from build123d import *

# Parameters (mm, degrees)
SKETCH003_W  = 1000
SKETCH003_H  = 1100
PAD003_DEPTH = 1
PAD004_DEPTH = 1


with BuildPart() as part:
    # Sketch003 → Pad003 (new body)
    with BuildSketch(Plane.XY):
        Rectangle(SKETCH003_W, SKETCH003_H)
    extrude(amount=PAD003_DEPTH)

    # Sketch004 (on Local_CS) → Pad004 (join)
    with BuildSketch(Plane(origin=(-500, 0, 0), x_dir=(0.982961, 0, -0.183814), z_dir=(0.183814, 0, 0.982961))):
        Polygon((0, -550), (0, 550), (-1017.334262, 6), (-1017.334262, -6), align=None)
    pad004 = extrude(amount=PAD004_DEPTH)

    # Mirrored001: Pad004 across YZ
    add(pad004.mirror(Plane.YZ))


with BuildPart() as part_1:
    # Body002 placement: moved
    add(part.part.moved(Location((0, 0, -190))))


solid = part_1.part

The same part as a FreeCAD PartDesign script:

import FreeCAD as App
import Part
import Sketcher
from FreeCAD import Vector

doc = App.newDocument("Part")
body = doc.addObject("PartDesign::Body", "Body")

sketch1 = body.newObject("Sketcher::SketchObject", "Sketch")
sketch1.AttachmentSupport = (doc.getObject("XY_Plane"), [""])
sketch1.MapMode = "FlatFace"
sketch1.addGeometry(Part.LineSegment(Vector(-500, 550, 0), Vector(-500, -550, 0)), False)
sketch1.addGeometry(Part.LineSegment(Vector(-500, -550, 0), Vector(500, -550, 0)), False)
sketch1.addGeometry(Part.LineSegment(Vector(500, -550, 0), Vector(500, 550, 0)), False)
sketch1.addGeometry(Part.LineSegment(Vector(500, 550, 0), Vector(-500, 550, 0)), False)
sketch1.addConstraint(Sketcher.Constraint("Coincident", 0, 2, 1, 1))
sketch1.addConstraint(Sketcher.Constraint("Coincident", 1, 2, 2, 1))
sketch1.addConstraint(Sketcher.Constraint("Coincident", 2, 2, 3, 1))
sketch1.addConstraint(Sketcher.Constraint("Coincident", 3, 2, 0, 1))
sketch1.addConstraint(Sketcher.Constraint("Vertical", 0))
sketch1.addConstraint(Sketcher.Constraint("Horizontal", 1))
sketch1.addConstraint(Sketcher.Constraint("Vertical", 2))
sketch1.addConstraint(Sketcher.Constraint("Horizontal", 3))
sketch1.addConstraint(Sketcher.Constraint("Symmetric", 0, 2, 2, 2, -1, 1))
sketch1.addConstraint(Sketcher.Constraint("DistanceX", 1, 1, 1, 2, 1000.0))
sketch1.addConstraint(Sketcher.Constraint("DistanceY", 0, 2, 0, 1, 1100.0))
pad1 = body.newObject("PartDesign::Pad", "Pad")
pad1.Profile = sketch1
pad1.Length = 1

sketch2 = body.newObject("Sketcher::SketchObject", "Sketch001")
sketch2.Placement = App.Placement(Vector(-500, 0, 0), App.Rotation(Vector(0.982961042, 0, -0.183814008), Vector(0, 1, 0), Vector(0.183814008, 0, 0.982961042), "ZXY"))
sketch2.addGeometry(Part.LineSegment(Vector(0, -550, 0), Vector(0, 550, 0)), False)
sketch2.addGeometry(Part.LineSegment(Vector(0, 550, 0), Vector(-1017, 6, 0)), False)
sketch2.addGeometry(Part.LineSegment(Vector(-1017, 6, 0), Vector(-1017, -6, 0)), False)
sketch2.addGeometry(Part.LineSegment(Vector(-1017, -6, 0), Vector(0, -550, 0)), False)
sketch2.addConstraint(Sketcher.Constraint("Coincident", 0, 2, 1, 1))
sketch2.addConstraint(Sketcher.Constraint("Coincident", 1, 2, 2, 1))
sketch2.addConstraint(Sketcher.Constraint("Coincident", 2, 2, 3, 1))
sketch2.addConstraint(Sketcher.Constraint("Coincident", 3, 2, 0, 1))
sketch2.addConstraint(Sketcher.Constraint("Vertical", 0))
sketch2.addConstraint(Sketcher.Constraint("Vertical", 2))
sketch2.addConstraint(Sketcher.Constraint("Symmetric", 0, 2, 3, 2, -1, 1))
sketch2.addConstraint(Sketcher.Constraint("Equal", 1, 3))
sketch2.addConstraint(Sketcher.Constraint("DistanceY", 0, 1, 0, 2, 1099.999999))
sketch2.addConstraint(Sketcher.Constraint("DistanceY", 2, 2, 2, 1, 12.0))
sketch2.addConstraint(Sketcher.Constraint("Distance", 1, 1153.64856))
pad2 = body.newObject("PartDesign::Pad", "Pad001")
pad2.Profile = sketch2
pad2.Length = 1
doc.recompute()

mirrored = body.newObject("PartDesign::Mirrored", "Mirrored")
mirrored.Originals = [pad2]
mirrored.MirrorPlane = (doc.getObject("YZ_Plane"), [""])
body.Tip = mirrored
body2 = doc.addObject("PartDesign::Body", "Body001")
doc.recompute()

body.Placement = App.Placement(Vector(0, 0, -190), App.Rotation(Vector(0, 0, 1), 0))
boolean = body2.newObject("PartDesign::Boolean", "Boolean")
boolean.Type = "Fuse"
boolean.addObjects([body])

doc.recompute()
